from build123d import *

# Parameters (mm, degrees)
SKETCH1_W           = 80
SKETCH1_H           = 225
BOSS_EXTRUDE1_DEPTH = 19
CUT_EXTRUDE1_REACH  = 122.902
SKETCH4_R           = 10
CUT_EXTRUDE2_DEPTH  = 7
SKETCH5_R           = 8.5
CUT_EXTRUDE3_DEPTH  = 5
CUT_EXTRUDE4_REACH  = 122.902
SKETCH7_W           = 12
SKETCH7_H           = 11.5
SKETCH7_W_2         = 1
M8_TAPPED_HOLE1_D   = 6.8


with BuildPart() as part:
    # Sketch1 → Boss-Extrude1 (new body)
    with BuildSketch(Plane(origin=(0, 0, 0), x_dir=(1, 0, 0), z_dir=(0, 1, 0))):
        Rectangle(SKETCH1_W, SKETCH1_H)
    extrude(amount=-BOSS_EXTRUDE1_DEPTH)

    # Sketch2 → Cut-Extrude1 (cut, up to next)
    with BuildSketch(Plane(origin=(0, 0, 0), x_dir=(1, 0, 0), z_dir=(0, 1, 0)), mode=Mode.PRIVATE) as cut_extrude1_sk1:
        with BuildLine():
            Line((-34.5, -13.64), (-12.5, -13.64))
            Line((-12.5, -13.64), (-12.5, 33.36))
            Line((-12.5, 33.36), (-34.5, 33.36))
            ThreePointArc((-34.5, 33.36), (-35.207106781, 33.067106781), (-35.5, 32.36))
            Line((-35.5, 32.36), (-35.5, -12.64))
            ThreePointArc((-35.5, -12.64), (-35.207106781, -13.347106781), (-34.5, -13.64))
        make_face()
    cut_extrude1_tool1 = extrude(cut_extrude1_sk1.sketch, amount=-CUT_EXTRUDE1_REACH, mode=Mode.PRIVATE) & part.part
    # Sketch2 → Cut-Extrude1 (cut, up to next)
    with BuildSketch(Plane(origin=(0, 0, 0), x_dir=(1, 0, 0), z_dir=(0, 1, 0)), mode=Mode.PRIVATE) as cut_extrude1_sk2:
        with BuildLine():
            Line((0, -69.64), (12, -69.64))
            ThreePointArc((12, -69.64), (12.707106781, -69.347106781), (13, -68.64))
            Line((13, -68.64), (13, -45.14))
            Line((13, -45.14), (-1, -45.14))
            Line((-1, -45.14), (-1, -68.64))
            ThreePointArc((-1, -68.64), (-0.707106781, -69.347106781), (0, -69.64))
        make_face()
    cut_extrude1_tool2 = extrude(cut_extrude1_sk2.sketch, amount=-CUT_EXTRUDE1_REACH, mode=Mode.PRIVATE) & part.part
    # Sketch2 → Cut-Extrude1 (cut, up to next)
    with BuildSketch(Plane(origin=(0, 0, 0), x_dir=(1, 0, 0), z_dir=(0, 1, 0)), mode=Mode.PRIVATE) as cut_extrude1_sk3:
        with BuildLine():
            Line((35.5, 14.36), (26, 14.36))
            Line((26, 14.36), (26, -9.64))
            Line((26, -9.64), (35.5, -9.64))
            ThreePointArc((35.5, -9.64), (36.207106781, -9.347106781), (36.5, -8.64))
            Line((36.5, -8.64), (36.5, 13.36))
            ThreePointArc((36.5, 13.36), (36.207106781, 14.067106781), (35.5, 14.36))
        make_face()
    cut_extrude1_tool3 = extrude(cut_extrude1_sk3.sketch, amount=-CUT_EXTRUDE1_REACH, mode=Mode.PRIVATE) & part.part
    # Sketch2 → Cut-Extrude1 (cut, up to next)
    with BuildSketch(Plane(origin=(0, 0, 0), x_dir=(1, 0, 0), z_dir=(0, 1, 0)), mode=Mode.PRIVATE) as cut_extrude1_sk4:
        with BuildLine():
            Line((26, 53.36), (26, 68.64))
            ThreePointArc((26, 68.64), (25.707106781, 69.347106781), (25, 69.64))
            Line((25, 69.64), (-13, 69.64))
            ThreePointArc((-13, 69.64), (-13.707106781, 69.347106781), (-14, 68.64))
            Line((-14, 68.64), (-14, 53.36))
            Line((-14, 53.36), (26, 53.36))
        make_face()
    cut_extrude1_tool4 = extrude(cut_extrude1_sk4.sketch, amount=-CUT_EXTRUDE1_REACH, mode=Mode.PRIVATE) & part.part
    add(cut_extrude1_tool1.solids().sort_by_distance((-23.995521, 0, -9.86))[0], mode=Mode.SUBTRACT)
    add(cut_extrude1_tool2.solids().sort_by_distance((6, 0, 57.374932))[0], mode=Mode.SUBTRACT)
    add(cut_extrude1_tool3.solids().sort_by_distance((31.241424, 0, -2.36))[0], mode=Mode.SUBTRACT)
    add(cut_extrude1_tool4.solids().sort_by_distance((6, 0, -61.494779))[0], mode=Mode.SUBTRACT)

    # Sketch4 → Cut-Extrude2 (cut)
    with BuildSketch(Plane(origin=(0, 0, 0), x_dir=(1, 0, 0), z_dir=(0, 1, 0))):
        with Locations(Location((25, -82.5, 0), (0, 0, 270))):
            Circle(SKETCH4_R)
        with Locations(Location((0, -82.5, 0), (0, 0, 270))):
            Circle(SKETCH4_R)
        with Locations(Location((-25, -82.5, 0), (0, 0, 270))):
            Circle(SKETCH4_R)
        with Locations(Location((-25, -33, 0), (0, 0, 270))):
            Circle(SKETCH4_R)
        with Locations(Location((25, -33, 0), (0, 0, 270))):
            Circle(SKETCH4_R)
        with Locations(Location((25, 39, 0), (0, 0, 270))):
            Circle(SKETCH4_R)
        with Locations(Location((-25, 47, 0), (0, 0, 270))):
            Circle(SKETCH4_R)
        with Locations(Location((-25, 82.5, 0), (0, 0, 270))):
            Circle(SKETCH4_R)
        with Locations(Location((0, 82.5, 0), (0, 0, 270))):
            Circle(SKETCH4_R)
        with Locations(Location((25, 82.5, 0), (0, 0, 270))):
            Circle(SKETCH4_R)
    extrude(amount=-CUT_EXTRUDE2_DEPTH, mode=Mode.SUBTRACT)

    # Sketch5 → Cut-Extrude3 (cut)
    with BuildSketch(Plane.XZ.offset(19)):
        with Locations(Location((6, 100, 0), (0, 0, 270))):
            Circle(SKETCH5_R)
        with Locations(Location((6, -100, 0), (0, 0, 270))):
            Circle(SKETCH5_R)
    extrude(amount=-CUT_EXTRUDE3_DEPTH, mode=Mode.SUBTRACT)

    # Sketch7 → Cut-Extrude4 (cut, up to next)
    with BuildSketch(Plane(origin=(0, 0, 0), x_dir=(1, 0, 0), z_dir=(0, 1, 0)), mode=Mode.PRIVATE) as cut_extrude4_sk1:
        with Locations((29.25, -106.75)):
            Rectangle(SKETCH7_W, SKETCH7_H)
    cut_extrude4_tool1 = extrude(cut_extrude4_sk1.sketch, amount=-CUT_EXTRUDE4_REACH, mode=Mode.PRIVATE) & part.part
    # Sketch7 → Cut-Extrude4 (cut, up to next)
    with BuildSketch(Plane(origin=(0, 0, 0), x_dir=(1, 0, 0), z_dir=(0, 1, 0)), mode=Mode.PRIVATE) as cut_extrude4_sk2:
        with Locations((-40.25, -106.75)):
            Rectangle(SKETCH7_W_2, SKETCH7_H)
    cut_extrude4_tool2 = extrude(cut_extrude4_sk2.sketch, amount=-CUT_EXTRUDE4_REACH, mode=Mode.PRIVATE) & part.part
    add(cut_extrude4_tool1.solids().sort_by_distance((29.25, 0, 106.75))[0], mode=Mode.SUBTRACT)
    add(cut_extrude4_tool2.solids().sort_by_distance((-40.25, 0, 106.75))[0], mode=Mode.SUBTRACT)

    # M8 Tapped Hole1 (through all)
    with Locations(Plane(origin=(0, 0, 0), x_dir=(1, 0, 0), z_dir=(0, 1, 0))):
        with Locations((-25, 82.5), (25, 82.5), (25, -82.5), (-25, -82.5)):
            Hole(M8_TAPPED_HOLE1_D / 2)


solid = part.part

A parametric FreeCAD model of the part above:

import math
import FreeCAD as App
import Part
import Sketcher
from FreeCAD import Vector
Q = App.Units.Quantity

doc = App.newDocument("Part")
body = doc.addObject("PartDesign::Body", "Body")

sketch1 = doc.addObject("Sketcher::SketchObject", "Sketch")
body.addObject(sketch1)
sketch1.AttachmentSupport = (doc.XZ_Plane, [""])
sketch1.MapMode = "FlatFace"
sketch1.addGeometry(Part.LineSegment(Vector(-40, -112, 0), Vector(-40, 112, 0)), False)
sketch1.addGeometry(Part.LineSegment(Vector(-40, 112, 0), Vector(40, 112, 0)), False)
sketch1.addGeometry(Part.LineSegment(Vector(40, 112, 0), Vector(40, -112, 0)), False)
sketch1.addGeometry(Part.LineSegment(Vector(40, -112, 0), Vector(-40, -112, 0)), False)
sketch1.addConstraint(Sketcher.Constraint("Coincident", 0, 2, 1, 1))
sketch1.addConstraint(Sketcher.Constraint("Coincident", 1, 2, 2, 1))
sketch1.addConstraint(Sketcher.Constraint("Coincident", 2, 2, 3, 1))
sketch1.addConstraint(Sketcher.Constraint("Coincident", 3, 2, 0, 1))
sketch1.addConstraint(Sketcher.Constraint("Vertical", 0))
sketch1.addConstraint(Sketcher.Constraint("Horizontal", 1))
sketch1.addConstraint(Sketcher.Constraint("Vertical", 2))
sketch1.addConstraint(Sketcher.Constraint("Horizontal", 3))
sketch1.addConstraint(Sketcher.Constraint("Symmetric", 0, 2, 2, 2, -1, 1))
sketch1.addConstraint(Sketcher.Constraint("DistanceX", 1, 1, 1, 2, Q("80 mm")))
sketch1.addConstraint(Sketcher.Constraint("DistanceY", 0, 1, 0, 2, Q("225 mm")))
pad1 = doc.addObject("PartDesign::Pad", "Pad")
body.addObject(pad1)
pad1.Profile = sketch1
pad1.Length = 19

sketch2 = doc.addObject("Sketcher::SketchObject", "Sketch001")
body.addObject(sketch2)
sketch2.AttachmentSupport = (doc.XZ_Plane, [""])
sketch2.MapMode = "FlatFace"
sketch2.addGeometry(Part.LineSegment(Vector(-34.5, 13.6, 0), Vector(-12.5, 13.6, 0)), False)
sketch2.addGeometry(Part.LineSegment(Vector(-12.5, 13.6, 0), Vector(-12.5, -33.4, 0)), False)
sketch2.addGeometry(Part.LineSegment(Vector(-12.5, -33.4, 0), Vector(-34.5, -33.4, 0)), False)
sketch2.addGeometry(Part.ArcOfCircle(Part.Circle(Vector(-34.5, -32.4, 0), Vector(0, 0, 1), 1), math.radians(-180), math.radians(-90)), False)
sketch2.addGeometry(Part.LineSegment(Vector(-35.5, -32.4, 0), Vector(-35.5, 12.6, 0)), False)
sketch2.addGeometry(Part.ArcOfCircle(Part.Circle(Vector(-34.5, 12.6, 0), Vector(0, 0, 1), 1), math.radians(90), math.radians(180)), False)
sketch2.addConstraint(Sketcher.Constraint("Coincident", 0, 2, 1, 1))
sketch2.addConstraint(Sketcher.Constraint("Coincident", 1, 2, 2, 1))
sketch2.addConstraint(Sketcher.Constraint("Tangent", 2, 2, 3, 2))
sketch2.addConstraint(Sketcher.Constraint("Tangent", 3, 1, 4, 1))
sketch2.addConstraint(Sketcher.Constraint("Tangent", 4, 2, 5, 2))
sketch2.addConstraint(Sketcher.Constraint("Tangent", 5, 1, 0, 1))
sketch2.addConstraint(Sketcher.Constraint("Horizontal", 0))
sketch2.addConstraint(Sketcher.Constraint("Vertical", 1))
sketch2.addConstraint(Sketcher.Constraint("Horizontal", 2))
sketch2.addConstraint(Sketcher.Constraint("Vertical", 4))
sketch2.addConstraint(Sketcher.Constraint("Equal", 3, 5))
sketch2.addConstraint(Sketcher.Constraint("Radius", 3, Q("1 mm")))
sketch2.addConstraint(Sketcher.Constraint("DistanceX", 0, 1, 0, 2, Q("22 mm")))
sketch2.addConstraint(Sketcher.Constraint("DistanceY", 1, 2, 1, 1, Q("47 mm")))
sketch2.addConstraint(Sketcher.Constraint("DistanceX", 3, 3, -1, 1, Q("34.5 mm")))
sketch2.addConstraint(Sketcher.Constraint("DistanceY", 3, 3, -1, 1, Q("32.36 mm")))
pocket1 = doc.addObject("PartDesign::Pocket", "Pocket")
body.addObject(pocket1)
pocket1.Profile = sketch2
pocket1.Type = "UpToFirst"
pocket1.Reversed = True

sketch3 = doc.addObject("Sketcher::SketchObject", "Sketch002")
body.addObject(sketch3)
sketch3.AttachmentSupport = (doc.XZ_Plane, [""])
sketch3.MapMode = "FlatFace"
sketch3.addGeometry(Part.LineSegment(Vector(0, 69.6, 0), Vector(12, 69.6, 0)), False)
sketch3.addGeometry(Part.ArcOfCircle(Part.Circle(Vector(12, 68.6, 0), Vector(0, 0, 1), 1), math.radians(0), math.radians(90)), False)
sketch3.addGeometry(Part.LineSegment(Vector(13, 68.6, 0), Vector(13, 45.1, 0)), False)
sketch3.addGeometry(Part.LineSegment(Vector(13, 45.1, 0), Vector(-1, 45.1, 0)), False)
sketch3.addGeometry(Part.LineSegment(Vector(-1, 45.1, 0), Vector(-1, 68.6, 0)), False)
sketch3.addGeometry(Part.ArcOfCircle(Part.Circle(Vector(0, 68.6, 0), Vector(0, 0, 1), 1), math.radians(90), math.radians(180)), False)
sketch3.addConstraint(Sketcher.Constraint("Tangent", 0, 2, 1, 2))
sketch3.addConstraint(Sketcher.Constraint("Tangent", 1, 1, 2, 1))
sketch3.addConstraint(Sketcher.Constraint("Coincident", 2, 2, 3, 1))
sketch3.addConstraint(Sketcher.Constraint("Coincident", 3, 2, 4, 1))
sketch3.addConstraint(Sketcher.Constraint("Tangent", 4, 2, 5, 2))
sketch3.addConstraint(Sketcher.Constraint("Tangent", 5, 1, 0, 1))
sketch3.addConstraint(Sketcher.Constraint("Horizontal", 0))
sketch3.addConstraint(Sketcher.Constraint("Vertical", 2))
sketch3.addConstraint(Sketcher.Constraint("Horizontal", 3))
sketch3.addConstraint(Sketcher.Constraint("Vertical", 4))
sketch3.addConstraint(Sketcher.Constraint("Equal", 1, 5))
sketch3.addConstraint(Sketcher.Constraint("PointOnObject", 5, 3, -2))
sketch3.addConstraint(Sketcher.Constraint("Radius", 1, Q("1 mm")))
sketch3.addConstraint(Sketcher.Constraint("DistanceX", 0, 1, 0, 2, Q("12 mm")))
sketch3.addConstraint(Sketcher.Constraint("DistanceY", 2, 2, 2, 1, Q("23.5 mm")))
sketch3.addConstraint(Sketcher.Constraint("DistanceY", -1, 1, 1, 3, Q("68.64 mm")))
pocket2 = doc.addObject("PartDesign::Pocket", "Pocket001")
body.addObject(pocket2)
pocket2.Profile = sketch3
pocket2.Type = "UpToFirst"
pocket2.Reversed = True

sketch4 = doc.addObject("Sketcher::SketchObject", "Sketch003")
body.addObject(sketch4)
sketch4.AttachmentSupport = (doc.XZ_Plane, [""])
sketch4.MapMode = "FlatFace"
sketch4.addGeometry(Part.LineSegment(Vector(35.5, -14.4, 0), Vector(26, -14.4, 0)), False)
sketch4.addGeometry(Part.LineSegment(Vector(26, -14.4, 0), Vector(26, 9.6, 0)), False)
sketch4.addGeometry(Part.LineSegment(Vector(26, 9.6, 0), Vector(35.5, 9.6, 0)), False)
sketch4.addGeometry(Part.ArcOfCircle(Part.Circle(Vector(35.5, 8.6, 0), Vector(0, 0, 1), 1), math.radians(0), math.radians(90)), False)
sketch4.addGeometry(Part.LineSegment(Vector(36.5, 8.6, 0), Vector(36.5, -13.4, 0)), False)
sketch4.addGeometry(Part.ArcOfCircle(Part.Circle(Vector(35.5, -13.4, 0), Vector(0, 0, 1), 1), math.radians(-90), math.radians(0)), False)
sketch4.addConstraint(Sketcher.Constraint("Coincident", 0, 2, 1, 1))
sketch4.addConstraint(Sketcher.Constraint("Coincident", 1, 2, 2, 1))
sketch4.addConstraint(Sketcher.Constraint("Tangent", 2, 2, 3, 2))
sketch4.addConstraint(Sketcher.Constraint("Tangent", 3, 1, 4, 1))
sketch4.addConstraint(Sketcher.Constraint("Tangent", 4, 2, 5, 2))
sketch4.addConstraint(Sketcher.Constraint("Tangent", 5, 1, 0, 1))
sketch4.addConstraint(Sketcher.Constraint("Horizontal", 0))
sketch4.addConstraint(Sketcher.Constraint("Vertical", 1))
sketch4.addConstraint(Sketcher.Constraint("Horizontal", 2))
sketch4.addConstraint(Sketcher.Constraint("Vertical", 4))
sketch4.addConstraint(Sketcher.Constraint("Equal", 3, 5))
sketch4.addConstraint(Sketcher.Constraint("Radius", 3, Q("1 mm")))
sketch4.addConstraint(Sketcher.Constraint("DistanceY", 1, 1, 1, 2, Q("24 mm")))
sketch4.addConstraint(Sketcher.Constraint("DistanceX", 0, 2, 0, 1, Q("9.5 mm")))
sketch4.addConstraint(Sketcher.Constraint("DistanceX", -1, 1, 0, 2, Q("26 mm")))
sketch4.addConstraint(Sketcher.Constraint("DistanceY", -1, 1, 3, 3, Q("8.64 mm")))
pocket3 = doc.addObject("PartDesign::Pocket", "Pocket002")
body.addObject(pocket3)
pocket3.Profile = sketch4
pocket3.Type = "UpToFirst"
pocket3.Reversed = True

sketch5 = doc.addObject("Sketcher::SketchObject", "Sketch004")
body.addObject(sketch5)
sketch5.AttachmentSupport = (doc.XZ_Plane, [""])
sketch5.MapMode = "FlatFace"
sketch5.addGeometry(Part.LineSegment(Vector(26, -53.4, 0), Vector(26, -68.6, 0)), False)
sketch5.addGeometry(Part.ArcOfCircle(Part.Circle(Vector(25, -68.6, 0), Vector(0, 0, 1), 1), math.radians(-90), math.radians(0)), False)
sketch5.addGeometry(Part.LineSegment(Vector(25, -69.6, 0), Vector(-13, -69.6, 0)), False)
sketch5.addGeometry(Part.ArcOfCircle(Part.Circle(Vector(-13, -68.6, 0), Vector(0, 0, 1), 1), math.radians(-180), math.radians(-90)), False)
sketch5.addGeometry(Part.LineSegment(Vector(-14, -68.6, 0), Vector(-14, -53.4, 0)), False)
sketch5.addGeometry(Part.LineSegment(Vector(-14, -53.4, 0), Vector(26, -53.4, 0)), False)
sketch5.addConstraint(Sketcher.Constraint("Tangent", 0, 2, 1, 2))
sketch5.addConstraint(Sketcher.Constraint("Tangent", 1, 1, 2, 1))
sketch5.addConstraint(Sketcher.Constraint("Tangent", 2, 2, 3, 2))
sketch5.addConstraint(Sketcher.Constraint("Tangent", 3, 1, 4, 1))
sketch5.addConstraint(Sketcher.Constraint("Coincident", 4, 2, 5, 1))
sketch5.addConstraint(Sketcher.Constraint("Coincident", 5, 2, 0, 1))
sketch5.addConstraint(Sketcher.Constraint("Vertical", 0))
sketch5.addConstraint(Sketcher.Constraint("Horizontal", 2))
sketch5.addConstraint(Sketcher.Constraint("Vertical", 4))
sketch5.addConstraint(Sketcher.Constraint("Horizontal", 5))
sketch5.addConstraint(Sketcher.Constraint("Equal", 1, 3))
sketch5.addConstraint(Sketcher.Constraint("Radius", 1, Q("1 mm")))
sketch5.addConstraint(Sketcher.Constraint("DistanceX", 2, 2, 2, 1, Q("38 mm")))
sketch5.addConstraint(Sketcher.Constraint("DistanceX", -1, 1, 1, 3, Q("25 mm")))
sketch5.addConstraint(Sketcher.Constraint("DistanceY", 0, 2, 0, 1, Q("15.28 mm")))
sketch5.addConstraint(Sketcher.Constraint("DistanceY", 1, 3, -1, 1, Q("68.64 mm")))
pocket4 = doc.addObject("PartDesign::Pocket", "Pocket003")
body.addObject(pocket4)
pocket4.Profile = sketch5
pocket4.Type = "UpToFirst"
pocket4.Reversed = True

sketch6 = doc.addObject("Sketcher::SketchObject", "Sketch005")
body.addObject(sketch6)
sketch6.AttachmentSupport = (doc.XZ_Plane, [""])
sketch6.MapMode = "FlatFace"
sketch6.addGeometry(Part.Circle(Vector(25, 82, 0), Vector(0, 0, 1), 10), False)
sketch6.addGeometry(Part.Circle(Vector(0, 82, 0), Vector(0, 0, 1), 10), False)
sketch6.addGeometry(Part.Circle(Vector(-25, 82, 0), Vector(0, 0, 1), 10), False)
sketch6.addGeometry(Part.Circle(Vector(-25, 33, 0), Vector(0, 0, 1), 10), False)
sketch6.addGeometry(Part.Circle(Vector(25, 33, 0), Vector(0, 0, 1), 10), False)
sketch6.addGeometry(Part.Circle(Vector(25, -39, 0), Vector(0, 0, 1), 10), False)
sketch6.addGeometry(Part.Circle(Vector(-25, -47, 0), Vector(0, 0, 1), 10), False)
sketch6.addGeometry(Part.Circle(Vector(-25, -82, 0), Vector(0, 0, 1), 10), False)
sketch6.addGeometry(Part.Circle(Vector(0, -82, 0), Vector(0, 0, 1), 10), False)
sketch6.addGeometry(Part.Circle(Vector(25, -82, 0), Vector(0, 0, 1), 10), False)
sketch6.addConstraint(Sketcher.Constraint("Equal", 0, 1))
sketch6.addConstraint(Sketcher.Constraint("Equal", 1, 2))
sketch6.addConstraint(Sketcher.Constraint("Equal", 2, 3))
sketch6.addConstraint(Sketcher.Constraint("Equal", 3, 4))
sketch6.addConstraint(Sketcher.Constraint("Equal", 4, 5))
sketch6.addConstraint(Sketcher.Constraint("Equal", 5, 6))
sketch6.addConstraint(Sketcher.Constraint("Equal", 6, 7))
sketch6.addConstraint(Sketcher.Constraint("Equal", 7, 8))
sketch6.addConstraint(Sketcher.Constraint("Equal", 8, 9))
sketch6.addConstraint(Sketcher.Constraint("Symmetric", 0, 3, 7, 3, -1, 1))
sketch6.addConstraint(Sketcher.Constraint("Symmetric", 1, 3, 8, 3, -1, 1))
sketch6.addConstraint(Sketcher.Constraint("Symmetric", 2, 3, 9, 3, -1, 1))
sketch6.addConstraint(Sketcher.Constraint("Symmetric", 0, 3, 2, 3, -2))
sketch6.addConstraint(Sketcher.Constraint("Symmetric", 3, 3, 4, 3, -2))
sketch6.addConstraint(Sketcher.Constraint("PointOnObject", 1, 3, -2))
sketch6.addConstraint(Sketcher.Constraint("Horizontal", 0, 3, 1, 3))
sketch6.addConstraint(Sketcher.Constraint("Vertical", 2, 3, 3, 3))
sketch6.addConstraint(Sketcher.Constraint("Vertical", 4, 3, 5, 3))
sketch6.addConstraint(Sketcher.Constraint("Vertical", 3, 3, 6, 3))
sketch6.addConstraint(Sketcher.Constraint("Diameter", 0, Q("20 mm")))
sketch6.addConstraint(Sketcher.Constraint("DistanceX", -1, 1, 0, 3, Q("25 mm")))
sketch6.addConstraint(Sketcher.Constraint("DistanceY", -1, 1, 3, 3, Q("33 mm")))
sketch6.addConstraint(Sketcher.Constraint("DistanceY", 5, 3, -1, 1, Q("39 mm")))
sketch6.addConstraint(Sketcher.Constraint("DistanceY", 6, 3, -1, 1, Q("47 mm")))
sketch6.addConstraint(Sketcher.Constraint("DistanceY", 7, 3, 2, 3, Q("165 mm")))
pocket5 = doc.addObject("PartDesign::Pocket", "Pocket004")
body.addObject(pocket5)
pocket5.Profile = sketch6
pocket5.Length = 7
pocket5.Reversed = True

sketch7 = doc.addObject("Sketcher::SketchObject", "Sketch006")
body.addObject(sketch7)
sketch7.AttachmentSupport = (doc.XZ_Plane, [""])
sketch7.MapMode = "FlatFace"
sketch7.AttachmentOffset = App.Placement(Vector(0, 0, 19), App.Rotation())
sketch7.addGeometry(Part.Circle(Vector(6, 100, 0), Vector(0, 0, 1), 8), False)
sketch7.addGeometry(Part.Circle(Vector(6, -100, 0), Vector(0, 0, 1), 8), False)
sketch7.addConstraint(Sketcher.Constraint("Equal", 0, 1))
sketch7.addConstraint(Sketcher.Constraint("Symmetric", 0, 3, 1, 3, -1))
sketch7.addConstraint(Sketcher.Constraint("Diameter", 0, Q("17 mm")))
sketch7.addConstraint(Sketcher.Constraint("DistanceX", -1, 1, 0, 3, Q("6 mm")))
sketch7.addConstraint(Sketcher.Constraint("DistanceY", -1, 1, 0, 3, Q("100 mm")))
pocket6 = doc.addObject("PartDesign::Pocket", "Pocket005")
body.addObject(pocket6)
pocket6.Profile = sketch7
pocket6.Length = 5

sketch8 = doc.addObject("Sketcher::SketchObject", "Sketch007")
body.addObject(sketch8)
sketch8.AttachmentSupport = (doc.XZ_Plane, [""])
sketch8.MapMode = "FlatFace"
sketch8.addGeometry(Part.LineSegment(Vector(23, 101, 0), Vector(23, 112, 0)), False)
sketch8.addGeometry(Part.LineSegment(Vector(23, 112, 0), Vector(35, 112, 0)), False)
sketch8.addGeometry(Part.LineSegment(Vector(35, 112, 0), Vector(35, 101, 0)), False)
sketch8.addGeometry(Part.LineSegment(Vector(35, 101, 0), Vector(23, 101, 0)), False)
sketch8.addConstraint(Sketcher.Constraint("Coincident", 0, 2, 1, 1))
sketch8.addConstraint(Sketcher.Constraint("Coincident", 1, 2, 2, 1))
sketch8.addConstraint(Sketcher.Constraint("Coincident", 2, 2, 3, 1))
sketch8.addConstraint(Sketcher.Constraint("Coincident", 3, 2, 0, 1))
sketch8.addConstraint(Sketcher.Constraint("Vertical", 0))
sketch8.addConstraint(Sketcher.Constraint("Horizontal", 1))
sketch8.addConstraint(Sketcher.Constraint("Vertical", 2))
sketch8.addConstraint(Sketcher.Constraint("Horizontal", 3))
sketch8.addConstraint(Sketcher.Constraint("DistanceX", 1, 1, 1, 2, Q("12 mm")))
sketch8.addConstraint(Sketcher.Constraint("DistanceY", 0, 1, 0, 2, Q("11.5 mm")))
sketch8.addConstraint(Sketcher.Constraint("DistanceY", -1, 1, 2, 2, Q("101 mm")))
sketch8.addConstraint(Sketcher.Constraint("DistanceX", -1, 1, 0, 2, Q("23.25 mm")))
pocket7 = doc.addObject("PartDesign::Pocket", "Pocket006")
body.addObject(pocket7)
pocket7.Profile = sketch8
pocket7.Type = "UpToFirst"
pocket7.Reversed = True

sketch9 = doc.addObject("Sketcher::SketchObject", "Sketch008")
body.addObject(sketch9)
sketch9.AttachmentSupport = (doc.XZ_Plane, [""])
sketch9.MapMode = "FlatFace"
sketch9.addGeometry(Part.LineSegment(Vector(-40.8, 101, 0), Vector(-40.8, 112.5, 0)), False)
sketch9.addGeometry(Part.LineSegment(Vector(-40.8, 112.5, 0), Vector(-39.8, 112.5, 0)), False)
sketch9.addGeometry(Part.LineSegment(Vector(-39.8, 112.5, 0), Vector(-39.8, 101, 0)), False)
sketch9.addGeometry(Part.LineSegment(Vector(-39.8, 101, 0), Vector(-40.8, 101, 0)), False)
sketch9.addConstraint(Sketcher.Constraint("Coincident", 0, 2, 1, 1))
sketch9.addConstraint(Sketcher.Constraint("Coincident", 1, 2, 2, 1))
sketch9.addConstraint(Sketcher.Constraint("Coincident", 2, 2, 3, 1))
sketch9.addConstraint(Sketcher.Constraint("Coincident", 3, 2, 0, 1))
sketch9.addConstraint(Sketcher.Constraint("Vertical", 0))
sketch9.addConstraint(Sketcher.Constraint("Horizontal", 1))
sketch9.addConstraint(Sketcher.Constraint("Vertical", 2))
sketch9.addConstraint(Sketcher.Constraint("Horizontal", 3))
sketch9.addConstraint(Sketcher.Constraint("DistanceX", 1, 1, 1, 2, Q("1 mm")))
sketch9.addConstraint(Sketcher.Constraint("DistanceY", 0, 1, 0, 2, Q("11.5 mm")))
sketch9.addConstraint(Sketcher.Constraint("DistanceY", -1, 1, 2, 2, Q("101 mm")))
sketch9.addConstraint(Sketcher.Constraint("DistanceX", 0, 2, -1, 1, Q("40.75 mm")))
pocket8 = doc.addObject("PartDesign::Pocket", "Pocket007")
body.addObject(pocket8)
pocket8.Profile = sketch9
pocket8.Length = 19
pocket8.Reversed = True

sketch10 = doc.addObject("Sketcher::SketchObject", "Sketch009")
body.addObject(sketch10)
sketch10.AttachmentSupport = (doc.XZ_Plane, [""])
sketch10.MapMode = "FlatFace"
sketch10.addGeometry(Part.Circle(Vector(-25, -82.5, 0), Vector(0, 0, 1), 3.4), False)
sketch10.addGeometry(Part.Circle(Vector(25, -82.5, 0), Vector(0, 0, 1), 3.4), False)
sketch10.addGeometry(Part.Circle(Vector(25, 82.5, 0), Vector(0, 0, 1), 3.4), False)
sketch10.addGeometry(Part.Circle(Vector(-25, 82.5, 0), Vector(0, 0, 1), 3.4), False)
sketch10.addConstraint(Sketcher.Constraint("Equal", 0, 1))
sketch10.addConstraint(Sketcher.Constraint("Equal", 1, 2))
sketch10.addConstraint(Sketcher.Constraint("Equal", 2, 3))
sketch10.addConstraint(Sketcher.Constraint("Symmetric", 0, 3, 2, 3, -1, 1))
sketch10.addConstraint(Sketcher.Constraint("Symmetric", 1, 3, 3, 3, -1, 1))
sketch10.addConstraint(Sketcher.Constraint("Symmetric", 0, 3, 1, 3, -2))
sketch10.addConstraint(Sketcher.Constraint("Diameter", 0, Q("6.8 mm")))
sketch10.addConstraint(Sketcher.Constraint("DistanceX", 0, 3, -1, 1, Q("25 mm")))
sketch10.addConstraint(Sketcher.Constraint("DistanceY", 1, 3, 2, 3, Q("165 mm")))
doc.recompute()
hole = doc.addObject("PartDesign::Hole", "Hole")
body.addObject(hole)
hole.Profile = sketch10
hole.ThreadType = "None"
hole.Diameter = 6.8
hole.DepthType = "ThroughAll"
hole.Reversed = True

doc.recompute()
